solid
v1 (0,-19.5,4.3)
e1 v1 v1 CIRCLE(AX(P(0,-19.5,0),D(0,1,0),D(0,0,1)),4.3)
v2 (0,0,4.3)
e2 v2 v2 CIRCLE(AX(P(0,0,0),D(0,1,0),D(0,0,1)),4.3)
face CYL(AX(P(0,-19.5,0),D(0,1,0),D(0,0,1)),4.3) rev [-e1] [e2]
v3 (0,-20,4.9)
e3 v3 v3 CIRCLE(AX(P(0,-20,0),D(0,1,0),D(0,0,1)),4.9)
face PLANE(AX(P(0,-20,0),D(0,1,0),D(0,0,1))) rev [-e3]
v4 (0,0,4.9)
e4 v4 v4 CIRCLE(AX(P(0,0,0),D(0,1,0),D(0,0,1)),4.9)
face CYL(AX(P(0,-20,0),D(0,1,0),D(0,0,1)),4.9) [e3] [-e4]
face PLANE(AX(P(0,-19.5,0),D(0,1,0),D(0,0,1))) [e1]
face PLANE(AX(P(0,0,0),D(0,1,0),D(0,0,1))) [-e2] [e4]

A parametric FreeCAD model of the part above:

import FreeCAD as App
import Part
import Sketcher

doc = App.newDocument("Part")
params = doc.addObject("Spreadsheet::Sheet", "Params")
for row, (alias, value) in enumerate([
    ("sketch1_diameter", "9.8 mm"),
    ("pad1_length", "20 mm"),
    ("sketch2_diameter", "8.6 mm"),
    ("pocket1_length", "19.5 mm"),
], start=1):
    params.set(f"A{row}", alias)
    params.set(f"B{row}", "=" + value)
    params.setAlias(f"B{row}", alias)

body = doc.addObject("PartDesign::Body", "Body")

sketch1 = body.newObject("Sketcher::SketchObject", "Sketch")
sketch1.AttachmentSupport = (doc.getObject("XZ_Plane"), [""])
sketch1.MapMode = "FlatFace"
sketch1.addGeometry(Part.Circle(App.Vector(0, 0, 0), App.Vector(0, 0, 1), 4.9), False)
sketch1.addConstraint([
    Sketcher.Constraint("Coincident", 0, 3, -1, 1),
    Sketcher.Constraint("Diameter", 0, 9.8),
])
sketch1.setExpression("Constraints[1]", "Params.sketch1_diameter")
pad1 = body.newObject("PartDesign::Pad", "Pad")
pad1.Profile = sketch1
pad1.setExpression("Length", "Params.pad1_length")

sketch2 = body.newObject("Sketcher::SketchObject", "Sketch001")
sketch2.AttachmentSupport = (doc.getObject("XZ_Plane"), [""])
sketch2.MapMode = "FlatFace"
sketch2.addGeometry(Part.Circle(App.Vector(0, 0, 0), App.Vector(0, 0, 1), 4.3), False)
sketch2.addConstraint([
    Sketcher.Constraint("Coincident", 0, 3, -1, 1),
    Sketcher.Constraint("Diameter", 0, 8.6),
])
sketch2.setExpression("Constraints[1]", "Params.sketch2_diameter")
pocket1 = body.newObject("PartDesign::Pocket", "Pocket")
pocket1.Profile = sketch2
pocket1.setExpression("Length", "Params.pocket1_length")
pocket1.Reversed = True

doc.recompute()
